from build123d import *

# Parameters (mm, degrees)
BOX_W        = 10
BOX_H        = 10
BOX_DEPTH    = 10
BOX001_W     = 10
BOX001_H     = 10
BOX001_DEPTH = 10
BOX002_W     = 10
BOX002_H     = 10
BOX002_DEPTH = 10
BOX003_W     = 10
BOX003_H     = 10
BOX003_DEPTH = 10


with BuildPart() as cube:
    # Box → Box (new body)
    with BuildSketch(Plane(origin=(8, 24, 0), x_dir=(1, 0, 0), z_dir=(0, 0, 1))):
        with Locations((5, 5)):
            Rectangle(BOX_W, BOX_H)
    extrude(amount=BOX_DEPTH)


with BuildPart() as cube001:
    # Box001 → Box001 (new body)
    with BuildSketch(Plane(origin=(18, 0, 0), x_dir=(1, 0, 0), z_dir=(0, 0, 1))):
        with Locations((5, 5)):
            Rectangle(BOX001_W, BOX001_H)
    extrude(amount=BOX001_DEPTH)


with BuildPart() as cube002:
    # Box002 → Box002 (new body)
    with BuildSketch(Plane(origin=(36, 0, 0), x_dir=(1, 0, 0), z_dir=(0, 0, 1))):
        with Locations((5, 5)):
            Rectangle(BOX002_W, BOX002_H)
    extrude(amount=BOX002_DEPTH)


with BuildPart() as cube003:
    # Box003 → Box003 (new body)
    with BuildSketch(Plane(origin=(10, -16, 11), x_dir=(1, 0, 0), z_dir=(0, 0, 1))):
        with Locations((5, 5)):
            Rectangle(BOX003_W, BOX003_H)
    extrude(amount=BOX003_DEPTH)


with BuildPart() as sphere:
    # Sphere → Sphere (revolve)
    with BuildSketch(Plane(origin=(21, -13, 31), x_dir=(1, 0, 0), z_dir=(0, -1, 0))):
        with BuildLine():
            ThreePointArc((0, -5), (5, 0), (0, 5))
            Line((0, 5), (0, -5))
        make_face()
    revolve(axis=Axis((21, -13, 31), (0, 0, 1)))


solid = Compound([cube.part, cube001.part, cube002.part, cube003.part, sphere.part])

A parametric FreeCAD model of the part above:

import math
import FreeCAD as App
import Part
import Sketcher
from FreeCAD import Vector


def add_polygon(sketch, points):
    """Adds a closed chain of lines whose ends are joined by coincident constraints."""
    first, n = sketch.GeometryCount, len(points)
    for a, b in zip(points, points[1:] + points[:1]):
        sketch.addGeometry(Part.LineSegment(App.Vector(*a, 0), App.Vector(*b, 0)), False)
    for i in range(n):
        sketch.addConstraint(Sketcher.Constraint("Coincident", first + i, 2, first + (i + 1) % n, 1))

doc = App.newDocument("Part")
params = doc.addObject("Spreadsheet::Sheet", "Params")
for row, (alias, value) in enumerate([
    ("sketch1_width", "10 mm"),
    ("pad1_length", "10 mm"),
    ("sketch2_width", "10 mm"),
    ("pad2_length", "10 mm"),
    ("sketch3_width", "10 mm"),
    ("pad3_length", "10 mm"),
    ("sketch4_width", "10 mm"),
    ("pad4_length", "10 mm"),
    ("sketch5_radius", "5 mm"),
    ("revolution_angle", "360 deg"),
], start=1):
    params.set(f"A{row}", alias)
    params.set(f"B{row}", "=" + value)
    params.setAlias(f"B{row}", alias)

body = doc.addObject("PartDesign::Body", "Body")

# Sketch on XY plane
sketch1 = doc.addObject("Sketcher::SketchObject", "Sketch")
body.addObject(sketch1)
sketch1.AttachmentSupport = (doc.XY_Plane, [""])
sketch1.MapMode = "FlatFace"
add_polygon(sketch1, [(8, 34), (8, 24), (18, 24), (18, 34)])  # lines 0-3
sketch1.addConstraint([
    Sketcher.Constraint("Vertical", 0),
    Sketcher.Constraint("Horizontal", 1),
    Sketcher.Constraint("Vertical", 2),
    Sketcher.Constraint("Horizontal", 3),
    Sketcher.Constraint("Equal", 3, 0),
    Sketcher.Constraint("DistanceX", 1, 1, 1, 2, 10.0),
    Sketcher.Constraint("DistanceX", -1, 1, 0, 2, 8.0),
    Sketcher.Constraint("DistanceY", -1, 1, 0, 2, 24.0),
])
sketch1.setExpression("Constraints[9]", "Params.sketch1_width")
pad1 = doc.addObject("PartDesign::Pad", "Pad")
body.addObject(pad1)
pad1.Profile = sketch1
pad1.setExpression("Length", "Params.pad1_length")
body2 = doc.addObject("PartDesign::Body", "Body001")

# Sketch on XY plane
sketch2 = doc.addObject("Sketcher::SketchObject", "Sketch001")
body2.addObject(sketch2)
sketch2.AttachmentSupport = (doc.getObject("XY_Plane001"), [""])
sketch2.MapMode = "FlatFace"
add_polygon(sketch2, [(18, 10), (18, 0), (28, 0), (28, 10)])  # lines 0-3
sketch2.addConstraint([
    Sketcher.Constraint("Vertical", 0),
    Sketcher.Constraint("Horizontal", 1),
    Sketcher.Constraint("Vertical", 2),
    Sketcher.Constraint("Horizontal", 3),
    Sketcher.Constraint("PointOnObject", 0, 2, -1),
    Sketcher.Constraint("Equal", 3, 0),
    Sketcher.Constraint("DistanceX", 1, 1, 1, 2, 10.0),
    Sketcher.Constraint("DistanceX", -1, 1, 0, 2, 18.0),
])
sketch2.setExpression("Constraints[10]", "Params.sketch2_width")
pad2 = doc.addObject("PartDesign::Pad", "Pad001")
body2.addObject(pad2)
pad2.Profile = sketch2
pad2.setExpression("Length", "Params.pad2_length")
body3 = doc.addObject("PartDesign::Body", "Body002")

# Sketch on XY plane
sketch3 = doc.addObject("Sketcher::SketchObject", "Sketch002")
body3.addObject(sketch3)
sketch3.AttachmentSupport = (doc.getObject("XY_Plane002"), [""])
sketch3.MapMode = "FlatFace"
add_polygon(sketch3, [(36, 10), (36, 0), (46, 0), (46, 10)])  # lines 0-3
sketch3.addConstraint([
    Sketcher.Constraint("Vertical", 0),
    Sketcher.Constraint("Horizontal", 1),
    Sketcher.Constraint("Vertical", 2),
    Sketcher.Constraint("Horizontal", 3),
    Sketcher.Constraint("PointOnObject", 0, 2, -1),
    Sketcher.Constraint("Equal", 3, 0),
    Sketcher.Constraint("DistanceX", 1, 1, 1, 2, 10.0),
    Sketcher.Constraint("DistanceX", -1, 1, 0, 2, 36.0),
])
sketch3.setExpression("Constraints[10]", "Params.sketch3_width")
pad3 = doc.addObject("PartDesign::Pad", "Pad002")
body3.addObject(pad3)
pad3.Profile = sketch3
pad3.setExpression("Length", "Params.pad3_length")
body4 = doc.addObject("PartDesign::Body", "Body003")

# Sketch on XY plane
sketch4 = doc.addObject("Sketcher::SketchObject", "Sketch003")
body4.addObject(sketch4)
sketch4.AttachmentSupport = (doc.getObject("XY_Plane003"), [""])
sketch4.MapMode = "FlatFace"
sketch4.AttachmentOffset = App.Placement(Vector(0, 0, 11), App.Rotation())
add_polygon(sketch4, [(10, -6), (10, -16), (20, -16), (20, -6)])  # lines 0-3
sketch4.addConstraint([
    Sketcher.Constraint("Vertical", 0),
    Sketcher.Constraint("Horizontal", 1),
    Sketcher.Constraint("Vertical", 2),
    Sketcher.Constraint("Horizontal", 3),
    Sketcher.Constraint("Equal", 3, 0),
    Sketcher.Constraint("DistanceX", 1, 1, 1, 2, 10.0),
    Sketcher.Constraint("DistanceX", -1, 1, 0, 2, 10.0),
    Sketcher.Constraint("DistanceY", 0, 2, -1, 1, 16.0),
])
sketch4.setExpression("Constraints[9]", "Params.sketch4_width")
pad4 = doc.addObject("PartDesign::Pad", "Pad003")
body4.addObject(pad4)
pad4.Profile = sketch4
pad4.setExpression("Length", "Params.pad4_length")
body5 = doc.addObject("PartDesign::Body", "Body004")

# Sketch on XZ plane
sketch5 = doc.addObject("Sketcher::SketchObject", "Sketch004")
body5.addObject(sketch5)
sketch5.AttachmentSupport = (doc.getObject("XZ_Plane004"), [""])
sketch5.MapMode = "FlatFace"
sketch5.AttachmentOffset = App.Placement(Vector(0, 0, 13), App.Rotation())
sketch5.addGeometry([
    Part.ArcOfCircle(Part.Circle(Vector(21, 31, 0), Vector(0, 0, 1), 5), math.radians(-90), math.radians(90)),
    Part.LineSegment(Vector(21, 36, 0), Vector(21, 26, 0)),
], False)
sketch5.addGeometry(Part.LineSegment(Vector(21, 26, 0), Vector(21, 36, 0)), True)  # axis
sketch5.addConstraint([
    Sketcher.Constraint("Coincident", 0, 1, 1, 2),
    Sketcher.Constraint("Coincident", 1, 1, 0, 2),
    Sketcher.Constraint("Vertical", 1),
    Sketcher.Constraint("Vertical", 2),
    Sketcher.Constraint("Coincident", 2, 1, 0, 1),
    Sketcher.Constraint("Equal", 1, 2),
    Sketcher.Constraint("Radius", 0, 5.0),
    Sketcher.Constraint("DistanceX", -1, 1, 0, 3, 21.0),
    Sketcher.Constraint("DistanceY", -1, 1, 0, 3, 31.0),
    Sketcher.Constraint("DistanceX", -1, 1, 0, 1, 21.0),
])
sketch5.setExpression("Constraints[6]", "Params.sketch5_radius")
revolution = doc.addObject("PartDesign::Revolution", "Revolution")
body5.addObject(revolution)
revolution.Profile = sketch5
revolution.ReferenceAxis = (sketch5, ["Axis0"])
revolution.setExpression("Angle", "Params.revolution_angle")

doc.recompute()
